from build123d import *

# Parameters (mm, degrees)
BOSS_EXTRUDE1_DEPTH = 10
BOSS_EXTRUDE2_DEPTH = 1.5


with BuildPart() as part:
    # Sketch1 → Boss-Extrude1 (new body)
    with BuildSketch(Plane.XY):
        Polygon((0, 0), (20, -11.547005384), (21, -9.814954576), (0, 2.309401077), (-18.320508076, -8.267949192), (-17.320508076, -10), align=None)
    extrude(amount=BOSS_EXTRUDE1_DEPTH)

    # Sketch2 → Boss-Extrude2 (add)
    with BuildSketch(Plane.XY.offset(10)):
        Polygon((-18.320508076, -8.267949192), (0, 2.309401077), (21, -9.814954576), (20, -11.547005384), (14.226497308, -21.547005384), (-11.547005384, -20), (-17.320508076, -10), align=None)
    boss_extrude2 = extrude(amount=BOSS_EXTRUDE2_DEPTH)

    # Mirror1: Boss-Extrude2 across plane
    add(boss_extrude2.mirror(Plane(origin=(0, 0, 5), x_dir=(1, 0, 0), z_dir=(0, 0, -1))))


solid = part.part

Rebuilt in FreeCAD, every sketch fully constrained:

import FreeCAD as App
import Part
import Sketcher
from FreeCAD import Vector
Q = App.Units.Quantity

doc = App.newDocument("Part")
body = doc.addObject("PartDesign::Body", "Body")

sketch1 = doc.addObject("Sketcher::SketchObject", "Sketch")
body.addObject(sketch1)
sketch1.AttachmentSupport = (doc.XY_Plane, [""])
sketch1.MapMode = "FlatFace"
sketch1.addGeometry([
    Part.LineSegment(Vector(0, 0, 0), Vector(20, -11.547005, 0)),
    Part.LineSegment(Vector(20, -11.547005, 0), Vector(21, -9.814955, 0)),
    Part.LineSegment(Vector(21, -9.814955, 0), Vector(0, 2.309401, 0)),
    Part.LineSegment(Vector(0, 2.309401, 0), Vector(-18.320508, -8.267949, 0)),
    Part.LineSegment(Vector(-18.320508, -8.267949, 0), Vector(-17.320508, -10, 0)),
    Part.LineSegment(Vector(-17.320508, -10, 0), Vector(0, 0, 0)),
], False)
sketch1.addConstraint([
    Sketcher.Constraint("Coincident", 0, 2, 1, 1),
    Sketcher.Constraint("Coincident", 1, 2, 2, 1),
    Sketcher.Constraint("Coincident", 2, 2, 3, 1),
    Sketcher.Constraint("Coincident", 3, 2, 4, 1),
    Sketcher.Constraint("Coincident", 4, 2, 5, 1),
    Sketcher.Constraint("Coincident", 5, 2, 0, 1),
    Sketcher.Constraint("Coincident", 5, 2, -1, 1),
    Sketcher.Constraint("PointOnObject", 2, 2, -2),
    Sketcher.Constraint("Perpendicular", 0, 1),
    Sketcher.Constraint("Perpendicular", 1, 2),
    Sketcher.Constraint("Perpendicular", 3, 4),
    Sketcher.Constraint("Perpendicular", 4, 5),
    Sketcher.Constraint("Equal", 1, 4),
    Sketcher.Constraint("Angle", 0, Q("-30 deg")),
    Sketcher.Constraint("Distance", 1, Q("2 mm")),
    Sketcher.Constraint("Distance", 5, Q("20 mm")),
    Sketcher.Constraint("DistanceX", -1, 1, 0, 2, Q("20 mm")),
])
pad1 = doc.addObject("PartDesign::Pad", "Pad")
body.addObject(pad1)
pad1.Profile = sketch1
pad1.Length = 10

sketch2 = doc.addObject("Sketcher::SketchObject", "Sketch001")
body.addObject(sketch2)
sketch2.AttachmentSupport = (doc.XY_Plane, [""])
sketch2.MapMode = "FlatFace"
sketch2.AttachmentOffset = App.Placement(Vector(0, 0, 10), App.Rotation())
sketch2.addGeometry([
    Part.LineSegment(Vector(0, 2.309401, 0), Vector(-18.320508, -8.267949, 0)),
    Part.LineSegment(Vector(-18.320508, -8.267949, 0), Vector(-17.320508, -10, 0)),
    Part.LineSegment(Vector(-17.320508, -10, 0), Vector(-11.547005, -20, 0)),
    Part.LineSegment(Vector(-11.547005, -20, 0), Vector(14.226497, -21.547005, 0)),
    Part.LineSegment(Vector(14.226497, -21.547005, 0), Vector(20, -11.547005, 0)),
    Part.LineSegment(Vector(20, -11.547005, 0), Vector(21, -9.814955, 0)),
    Part.LineSegment(Vector(21, -9.814955, 0), Vector(0, 2.309401, 0)),
], False)
sketch2.addConstraint([
    Sketcher.Constraint("Coincident", 0, 2, 1, 1),
    Sketcher.Constraint("Coincident", 1, 2, 2, 1),
    Sketcher.Constraint("Coincident", 2, 2, 3, 1),
    Sketcher.Constraint("Coincident", 3, 2, 4, 1),
    Sketcher.Constraint("Coincident", 4, 2, 5, 1),
    Sketcher.Constraint("Coincident", 5, 2, 6, 1),
    Sketcher.Constraint("Coincident", 6, 2, 0, 1),
    Sketcher.Constraint("PointOnObject", 6, 2, -2),
    Sketcher.Constraint("Perpendicular", 0, 1),
    Sketcher.Constraint("Parallel", 1, 2),
    Sketcher.Constraint("Parallel", 4, 5),
    Sketcher.Constraint("Perpendicular", 5, 6),
    Sketcher.Constraint("Equal", 2, 4),
    Sketcher.Constraint("Equal", 1, 5),
    Sketcher.Constraint("Angle", 0, Q("-150 deg")),
    Sketcher.Constraint("Angle", 4, Q("60 deg")),
    Sketcher.Constraint("Distance", 1, Q("2 mm")),
    Sketcher.Constraint("DistanceY", 1, 2, -1, 1, Q("10 mm")),
    Sketcher.Constraint("DistanceY", 2, 2, -1, 1, Q("20 mm")),
    Sketcher.Constraint("DistanceX", -1, 1, 4, 2, Q("20 mm")),
    Sketcher.Constraint("Distance", 0, Q("21.154701 mm")),
])
pad2 = doc.addObject("PartDesign::Pad", "Pad001")
body.addObject(pad2)
pad2.Profile = sketch2
pad2.Length = 1.5
doc.recompute()

datumplane = doc.addObject("PartDesign::Plane", "DatumPlane")
body.addObject(datumplane)
datumplane.AttachmentSupport = (doc.XY_Plane, [""])
datumplane.MapMode = "FlatFace"
datumplane.AttachmentOffset = App.Placement(Vector(0, 0, 5), App.Rotation())
mirrored = doc.addObject("PartDesign::Mirrored", "Mirrored")
body.addObject(mirrored)
mirrored.Originals = [pad2]
mirrored.MirrorPlane = (datumplane, [""])
body.Tip = mirrored

doc.recompute()
